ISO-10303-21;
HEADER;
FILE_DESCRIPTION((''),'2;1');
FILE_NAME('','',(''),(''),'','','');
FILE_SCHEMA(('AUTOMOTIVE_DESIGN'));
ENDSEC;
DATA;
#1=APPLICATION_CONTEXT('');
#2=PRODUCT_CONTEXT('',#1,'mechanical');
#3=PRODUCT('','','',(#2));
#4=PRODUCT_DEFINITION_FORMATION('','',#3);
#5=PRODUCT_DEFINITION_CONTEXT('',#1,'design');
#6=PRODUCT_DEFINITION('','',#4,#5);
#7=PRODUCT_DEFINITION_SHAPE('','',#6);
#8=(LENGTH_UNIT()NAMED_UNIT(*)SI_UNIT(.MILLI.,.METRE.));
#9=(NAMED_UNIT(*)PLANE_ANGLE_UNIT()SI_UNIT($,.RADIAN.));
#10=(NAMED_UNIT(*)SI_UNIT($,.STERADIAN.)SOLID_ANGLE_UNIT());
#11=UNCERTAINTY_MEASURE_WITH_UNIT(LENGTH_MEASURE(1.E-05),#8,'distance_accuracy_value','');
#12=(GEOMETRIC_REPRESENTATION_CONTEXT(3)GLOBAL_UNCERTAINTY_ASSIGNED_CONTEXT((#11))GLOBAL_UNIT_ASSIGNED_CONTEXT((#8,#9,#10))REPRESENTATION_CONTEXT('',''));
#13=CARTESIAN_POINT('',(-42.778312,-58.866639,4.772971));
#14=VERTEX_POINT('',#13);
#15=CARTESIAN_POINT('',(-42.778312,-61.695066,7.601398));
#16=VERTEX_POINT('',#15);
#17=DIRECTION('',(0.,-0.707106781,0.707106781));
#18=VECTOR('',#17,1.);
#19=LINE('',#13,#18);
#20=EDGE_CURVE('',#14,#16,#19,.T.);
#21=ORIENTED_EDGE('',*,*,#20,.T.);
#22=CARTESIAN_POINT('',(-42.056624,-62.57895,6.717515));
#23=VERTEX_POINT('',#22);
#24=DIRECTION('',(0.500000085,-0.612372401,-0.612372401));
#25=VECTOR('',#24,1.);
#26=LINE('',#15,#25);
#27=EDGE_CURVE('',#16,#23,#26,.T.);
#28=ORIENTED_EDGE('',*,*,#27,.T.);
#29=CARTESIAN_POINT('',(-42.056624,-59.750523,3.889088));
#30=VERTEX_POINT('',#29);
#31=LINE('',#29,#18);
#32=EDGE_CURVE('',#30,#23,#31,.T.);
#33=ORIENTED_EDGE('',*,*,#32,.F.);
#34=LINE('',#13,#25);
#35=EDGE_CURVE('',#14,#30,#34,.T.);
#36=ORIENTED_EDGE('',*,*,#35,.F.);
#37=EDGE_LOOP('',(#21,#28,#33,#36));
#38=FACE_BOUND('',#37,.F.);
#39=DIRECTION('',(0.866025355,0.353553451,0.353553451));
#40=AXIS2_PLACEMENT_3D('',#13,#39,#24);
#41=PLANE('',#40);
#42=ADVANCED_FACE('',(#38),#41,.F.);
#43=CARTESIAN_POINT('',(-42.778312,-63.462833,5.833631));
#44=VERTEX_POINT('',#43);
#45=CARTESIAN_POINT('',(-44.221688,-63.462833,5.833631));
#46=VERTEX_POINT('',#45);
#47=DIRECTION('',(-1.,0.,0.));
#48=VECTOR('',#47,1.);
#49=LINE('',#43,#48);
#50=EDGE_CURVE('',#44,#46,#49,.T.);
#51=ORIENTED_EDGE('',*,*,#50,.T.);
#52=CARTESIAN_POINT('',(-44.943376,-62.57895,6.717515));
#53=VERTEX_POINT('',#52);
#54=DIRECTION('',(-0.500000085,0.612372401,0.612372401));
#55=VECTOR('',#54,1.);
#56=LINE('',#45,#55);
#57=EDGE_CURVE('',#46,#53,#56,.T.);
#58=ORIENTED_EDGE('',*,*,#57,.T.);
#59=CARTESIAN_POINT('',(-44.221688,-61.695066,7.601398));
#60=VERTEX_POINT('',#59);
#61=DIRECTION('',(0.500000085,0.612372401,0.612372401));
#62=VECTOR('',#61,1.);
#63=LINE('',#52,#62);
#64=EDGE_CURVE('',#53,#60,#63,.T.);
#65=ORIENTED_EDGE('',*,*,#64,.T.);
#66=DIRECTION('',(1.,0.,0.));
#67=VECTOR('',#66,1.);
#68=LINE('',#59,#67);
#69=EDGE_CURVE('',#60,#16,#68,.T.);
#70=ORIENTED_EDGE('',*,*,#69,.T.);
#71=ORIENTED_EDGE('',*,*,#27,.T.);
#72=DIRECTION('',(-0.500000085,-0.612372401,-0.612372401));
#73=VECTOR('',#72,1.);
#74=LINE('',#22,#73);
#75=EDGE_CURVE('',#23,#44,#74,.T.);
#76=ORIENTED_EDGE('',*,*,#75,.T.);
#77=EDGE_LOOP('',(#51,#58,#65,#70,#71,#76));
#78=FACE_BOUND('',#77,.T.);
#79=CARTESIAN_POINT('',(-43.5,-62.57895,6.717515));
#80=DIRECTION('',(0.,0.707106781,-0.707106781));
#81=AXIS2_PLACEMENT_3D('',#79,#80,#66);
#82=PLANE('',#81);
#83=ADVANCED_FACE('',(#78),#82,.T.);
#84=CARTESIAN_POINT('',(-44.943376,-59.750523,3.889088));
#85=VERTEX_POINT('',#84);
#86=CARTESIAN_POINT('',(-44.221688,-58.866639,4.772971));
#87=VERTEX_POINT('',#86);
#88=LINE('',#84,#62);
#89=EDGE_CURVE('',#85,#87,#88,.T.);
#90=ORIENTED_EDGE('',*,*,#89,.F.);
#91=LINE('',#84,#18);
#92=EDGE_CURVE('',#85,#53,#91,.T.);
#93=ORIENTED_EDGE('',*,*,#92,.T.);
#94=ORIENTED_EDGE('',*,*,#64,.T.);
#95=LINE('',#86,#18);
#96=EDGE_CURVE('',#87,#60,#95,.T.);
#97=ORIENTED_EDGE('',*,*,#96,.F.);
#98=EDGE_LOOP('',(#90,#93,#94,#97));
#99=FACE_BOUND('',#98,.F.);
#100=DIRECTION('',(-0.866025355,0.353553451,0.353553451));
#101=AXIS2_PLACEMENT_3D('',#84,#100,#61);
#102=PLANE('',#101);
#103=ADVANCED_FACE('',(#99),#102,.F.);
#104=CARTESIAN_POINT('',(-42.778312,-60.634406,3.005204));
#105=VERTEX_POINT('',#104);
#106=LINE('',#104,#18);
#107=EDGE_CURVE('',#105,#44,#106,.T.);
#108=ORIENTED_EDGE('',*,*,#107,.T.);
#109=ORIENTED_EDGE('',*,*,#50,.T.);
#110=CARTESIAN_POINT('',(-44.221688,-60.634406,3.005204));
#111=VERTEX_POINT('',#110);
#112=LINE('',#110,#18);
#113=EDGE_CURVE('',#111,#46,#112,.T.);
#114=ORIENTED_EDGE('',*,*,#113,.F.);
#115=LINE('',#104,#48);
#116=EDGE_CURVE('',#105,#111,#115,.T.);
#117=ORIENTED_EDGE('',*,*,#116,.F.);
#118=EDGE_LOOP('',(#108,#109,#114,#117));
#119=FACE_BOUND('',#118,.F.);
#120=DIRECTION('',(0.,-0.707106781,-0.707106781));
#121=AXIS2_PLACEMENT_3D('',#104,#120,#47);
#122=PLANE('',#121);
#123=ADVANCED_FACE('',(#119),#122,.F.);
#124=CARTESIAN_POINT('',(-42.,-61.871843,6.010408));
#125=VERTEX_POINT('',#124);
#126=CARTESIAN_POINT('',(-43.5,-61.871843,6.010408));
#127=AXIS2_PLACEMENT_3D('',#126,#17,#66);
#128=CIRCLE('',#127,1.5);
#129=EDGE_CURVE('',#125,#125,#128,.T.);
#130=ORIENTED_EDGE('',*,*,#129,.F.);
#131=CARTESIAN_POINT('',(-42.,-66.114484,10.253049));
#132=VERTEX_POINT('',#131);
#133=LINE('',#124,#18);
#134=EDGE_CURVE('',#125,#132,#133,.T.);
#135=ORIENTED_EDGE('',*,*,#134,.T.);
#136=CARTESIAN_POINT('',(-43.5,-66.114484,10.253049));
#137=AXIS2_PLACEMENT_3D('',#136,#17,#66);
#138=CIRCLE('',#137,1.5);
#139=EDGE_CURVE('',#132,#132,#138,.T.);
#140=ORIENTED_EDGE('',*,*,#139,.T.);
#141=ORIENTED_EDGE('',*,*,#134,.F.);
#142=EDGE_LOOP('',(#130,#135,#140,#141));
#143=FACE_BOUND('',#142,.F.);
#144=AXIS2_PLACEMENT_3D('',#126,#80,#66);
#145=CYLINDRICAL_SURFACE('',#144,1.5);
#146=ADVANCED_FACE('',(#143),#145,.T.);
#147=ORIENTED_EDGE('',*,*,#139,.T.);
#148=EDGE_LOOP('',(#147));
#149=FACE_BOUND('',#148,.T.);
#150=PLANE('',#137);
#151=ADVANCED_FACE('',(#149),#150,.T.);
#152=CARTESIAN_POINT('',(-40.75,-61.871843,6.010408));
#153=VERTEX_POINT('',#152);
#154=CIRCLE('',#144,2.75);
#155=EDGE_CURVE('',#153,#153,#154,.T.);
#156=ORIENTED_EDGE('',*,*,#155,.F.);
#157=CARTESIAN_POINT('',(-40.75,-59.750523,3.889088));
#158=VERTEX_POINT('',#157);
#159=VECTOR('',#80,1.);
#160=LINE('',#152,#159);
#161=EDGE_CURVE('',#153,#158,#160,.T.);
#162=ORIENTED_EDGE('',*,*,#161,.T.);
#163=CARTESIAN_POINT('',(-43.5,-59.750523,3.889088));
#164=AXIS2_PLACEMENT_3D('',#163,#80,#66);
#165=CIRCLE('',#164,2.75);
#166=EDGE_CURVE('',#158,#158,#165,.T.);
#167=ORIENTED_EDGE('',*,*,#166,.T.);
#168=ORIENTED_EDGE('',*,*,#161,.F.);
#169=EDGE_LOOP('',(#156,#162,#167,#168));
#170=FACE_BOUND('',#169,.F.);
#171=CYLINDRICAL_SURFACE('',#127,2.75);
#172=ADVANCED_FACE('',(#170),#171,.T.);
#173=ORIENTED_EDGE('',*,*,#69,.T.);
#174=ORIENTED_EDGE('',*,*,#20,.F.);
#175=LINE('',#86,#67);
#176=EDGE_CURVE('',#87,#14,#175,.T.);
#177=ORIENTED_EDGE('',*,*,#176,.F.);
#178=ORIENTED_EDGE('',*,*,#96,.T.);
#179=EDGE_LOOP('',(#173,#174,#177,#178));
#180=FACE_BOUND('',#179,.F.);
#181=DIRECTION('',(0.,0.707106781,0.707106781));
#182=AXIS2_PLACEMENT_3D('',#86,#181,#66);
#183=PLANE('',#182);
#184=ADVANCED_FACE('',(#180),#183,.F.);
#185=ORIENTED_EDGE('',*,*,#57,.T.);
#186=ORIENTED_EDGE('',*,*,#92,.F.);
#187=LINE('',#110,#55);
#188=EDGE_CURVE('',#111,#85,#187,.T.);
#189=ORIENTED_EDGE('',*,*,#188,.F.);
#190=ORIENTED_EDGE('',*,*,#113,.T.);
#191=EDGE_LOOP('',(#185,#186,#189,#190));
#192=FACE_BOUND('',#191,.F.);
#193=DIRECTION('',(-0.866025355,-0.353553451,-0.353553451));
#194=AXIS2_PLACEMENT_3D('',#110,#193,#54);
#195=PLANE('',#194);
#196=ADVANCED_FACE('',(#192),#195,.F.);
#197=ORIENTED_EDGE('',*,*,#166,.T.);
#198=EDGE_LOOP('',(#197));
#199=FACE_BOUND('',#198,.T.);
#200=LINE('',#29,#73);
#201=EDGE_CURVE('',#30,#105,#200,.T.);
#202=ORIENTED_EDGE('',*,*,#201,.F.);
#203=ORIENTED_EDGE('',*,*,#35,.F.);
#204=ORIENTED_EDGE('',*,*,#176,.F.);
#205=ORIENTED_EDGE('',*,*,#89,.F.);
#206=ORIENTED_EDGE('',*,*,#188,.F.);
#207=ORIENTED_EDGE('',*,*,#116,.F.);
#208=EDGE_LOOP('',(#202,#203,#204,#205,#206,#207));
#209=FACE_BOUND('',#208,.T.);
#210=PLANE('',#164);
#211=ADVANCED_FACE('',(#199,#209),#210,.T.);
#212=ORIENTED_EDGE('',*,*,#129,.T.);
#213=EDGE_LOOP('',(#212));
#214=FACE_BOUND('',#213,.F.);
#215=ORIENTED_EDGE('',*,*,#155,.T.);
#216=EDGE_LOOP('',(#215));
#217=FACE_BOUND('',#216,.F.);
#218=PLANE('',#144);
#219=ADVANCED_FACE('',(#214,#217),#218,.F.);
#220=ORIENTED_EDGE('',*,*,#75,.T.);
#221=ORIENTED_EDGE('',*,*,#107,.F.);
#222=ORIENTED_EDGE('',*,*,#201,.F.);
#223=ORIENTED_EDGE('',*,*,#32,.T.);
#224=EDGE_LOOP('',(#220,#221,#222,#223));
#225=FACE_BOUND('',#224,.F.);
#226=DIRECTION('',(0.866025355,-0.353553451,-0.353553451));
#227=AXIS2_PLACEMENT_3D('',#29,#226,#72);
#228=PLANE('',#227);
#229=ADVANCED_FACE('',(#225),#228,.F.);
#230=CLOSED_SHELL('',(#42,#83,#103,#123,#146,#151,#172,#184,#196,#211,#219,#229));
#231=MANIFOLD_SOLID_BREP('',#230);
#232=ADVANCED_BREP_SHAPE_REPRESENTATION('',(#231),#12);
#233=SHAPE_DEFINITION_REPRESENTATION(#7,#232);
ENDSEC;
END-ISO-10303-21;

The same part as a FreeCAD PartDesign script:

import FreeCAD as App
import Part
import Sketcher
Q = App.Units.Quantity

doc = App.newDocument("Part")
params = doc.addObject("Spreadsheet::Sheet", "Params")
for row, (alias, value) in enumerate([
    ("sketch1_diameter", "5.5 mm"),
    ("pad1_length", "3 mm"),
    ("sketch2_diameter", "3 mm"),
    ("pad2_length", "6 mm"),
    ("pocket1_length", "4 mm"),
], start=1):
    params.set(f"A{row}", alias)
    params.set(f"B{row}", "=" + value)
    params.setAlias(f"B{row}", alias)

body = doc.addObject("PartDesign::Body", "Body")

sketch1 = body.newObject("Sketcher::SketchObject", "Sketch")
sketch1.AttachmentSupport = (doc.getObject("XY_Plane"), [""])
sketch1.MapMode = "FlatFace"
sketch1.addGeometry(Part.Circle(App.Vector(0, 0, 0), App.Vector(0, 0, 1), 2.75), False)
sketch1.addConstraint([
    Sketcher.Constraint("Coincident", 0, 3, -1, 1),
    Sketcher.Constraint("Diameter", 0, Q("5.5 mm")),
])
sketch1.setExpression("Constraints[1]", "Params.sketch1_diameter")
pad1 = body.newObject("PartDesign::Pad", "Pad")
pad1.Profile = sketch1
pad1.setExpression("Length", "Params.pad1_length")

sketch2 = body.newObject("Sketcher::SketchObject", "Sketch001")
sketch2.AttachmentSupport = (doc.getObject("XY_Plane"), [""])
sketch2.MapMode = "FlatFace"
sketch2.addGeometry(Part.Circle(App.Vector(0, 0, 0), App.Vector(0, 0, 1), 1.5), False)
sketch2.addConstraint([
    Sketcher.Constraint("Coincident", 0, 3, -1, 1),
    Sketcher.Constraint("Diameter", 0, Q("3 mm")),
])
sketch2.setExpression("Constraints[1]", "Params.sketch2_diameter")
pad2 = body.newObject("PartDesign::Pad", "Pad001")
pad2.Profile = sketch2
pad2.setExpression("Length", "Params.pad2_length")
pad2.Reversed = True

sketch3 = body.newObject("Sketcher::SketchObject", "Sketch002")
sketch3.AttachmentSupport = (doc.getObject("XY_Plane"), [""])
sketch3.MapMode = "FlatFace"
sketch3.AttachmentOffset = App.Placement(App.Vector(0, 0, 3), App.Rotation())
sketch3.addGeometry([
    Part.LineSegment(App.Vector(0.721688, -1.25, 0), App.Vector(1.443376, 0, 0)),
    Part.LineSegment(App.Vector(1.443376, 0, 0), App.Vector(0.721688, 1.25, 0)),
    Part.LineSegment(App.Vector(0.721688, 1.25, 0), App.Vector(-0.721688, 1.25, 0)),
    Part.LineSegment(App.Vector(-0.721688, 1.25, 0), App.Vector(-1.443376, 0, 0)),
    Part.LineSegment(App.Vector(-1.443376, 0, 0), App.Vector(-0.721688, -1.25, 0)),
    Part.LineSegment(App.Vector(-0.721688, -1.25, 0), App.Vector(0.721688, -1.25, 0)),
], False)
sketch3.addConstraint([
    Sketcher.Constraint("Coincident", 0, 2, 1, 1),
    Sketcher.Constraint("Coincident", 1, 2, 2, 1),
    Sketcher.Constraint("Coincident", 2, 2, 3, 1),
    Sketcher.Constraint("Coincident", 3, 2, 4, 1),
    Sketcher.Constraint("Coincident", 4, 2, 5, 1),
    Sketcher.Constraint("Coincident", 5, 2, 0, 1),
    Sketcher.Constraint("Horizontal", 2),
    Sketcher.Constraint("Horizontal", 5),
    Sketcher.Constraint("Symmetric", 0, 2, 3, 2, -1, 1),
    Sketcher.Constraint("Symmetric", 1, 2, 4, 2, -1, 1),
    Sketcher.Constraint("PointOnObject", 0, 2, -1),
    Sketcher.Constraint("Parallel", 0, 3),
    Sketcher.Constraint("Vertical", 2, 2, 4, 2),
    Sketcher.Constraint("Angle", 0, Q("59.999994 deg")),
    Sketcher.Constraint("DistanceY", 4, 2, 2, 2, Q("2.5 mm")),
    Sketcher.Constraint("DistanceX", 2, 2, 2, 1, Q("1.443376 mm")),
])
pocket1 = body.newObject("PartDesign::Pocket", "Pocket")
pocket1.Profile = sketch3
pocket1.setExpression("Length", "Params.pocket1_length")
body2 = doc.addObject("PartDesign::Body", "Body001")
doc.recompute()

body.Placement = App.Placement(App.Vector(-43.5, -61.871843, 6.010408), App.Rotation(App.Vector(1, 0, 0), 225))
boolean = body2.newObject("PartDesign::Boolean", "Boolean")
boolean.Type = "Fuse"
boolean.addObjects([body])

doc.recompute()
